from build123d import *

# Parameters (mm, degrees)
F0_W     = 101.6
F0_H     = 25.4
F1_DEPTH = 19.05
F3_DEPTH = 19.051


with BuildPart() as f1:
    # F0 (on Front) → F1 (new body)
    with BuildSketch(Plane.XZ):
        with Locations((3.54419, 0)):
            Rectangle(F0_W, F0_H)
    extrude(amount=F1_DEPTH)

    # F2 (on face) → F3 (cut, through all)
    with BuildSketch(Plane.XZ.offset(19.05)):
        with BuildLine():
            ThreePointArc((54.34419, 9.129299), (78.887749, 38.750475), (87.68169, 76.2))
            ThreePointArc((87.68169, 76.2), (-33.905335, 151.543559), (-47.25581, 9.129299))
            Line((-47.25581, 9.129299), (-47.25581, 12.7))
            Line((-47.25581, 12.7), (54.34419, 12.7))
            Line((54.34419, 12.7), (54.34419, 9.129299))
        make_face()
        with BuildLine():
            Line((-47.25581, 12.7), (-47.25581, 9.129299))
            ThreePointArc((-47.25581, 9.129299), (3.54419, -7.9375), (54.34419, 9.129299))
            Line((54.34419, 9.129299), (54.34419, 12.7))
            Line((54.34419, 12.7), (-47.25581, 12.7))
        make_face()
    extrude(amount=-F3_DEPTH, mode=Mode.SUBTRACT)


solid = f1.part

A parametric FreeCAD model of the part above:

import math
import FreeCAD as App
import Part
import Sketcher

V = App.Vector
Q = App.Units.Quantity

doc = App.newDocument("Part")
body = doc.addObject("PartDesign::Body", "Body")

sketch1 = body.newObject("Sketcher::SketchObject", "Sketch")
sketch1.AttachmentSupport = (doc.getObject("XZ_Plane"), [""])
sketch1.MapMode = "FlatFace"
sketch1.addGeometry([
    Part.LineSegment(V(-47, 13, 0), V(-47, -13, 0)),
    Part.LineSegment(V(-47, -13, 0), V(54, -13, 0)),
    Part.LineSegment(V(54, -13, 0), V(54, 13, 0)),
    Part.LineSegment(V(54, 13, 0), V(-47, 13, 0)),
], False)
sketch1.addConstraint([
    Sketcher.Constraint("Coincident", 0, 2, 1, 1),
    Sketcher.Constraint("Coincident", 1, 2, 2, 1),
    Sketcher.Constraint("Coincident", 2, 2, 3, 1),
    Sketcher.Constraint("Coincident", 3, 2, 0, 1),
    Sketcher.Constraint("Vertical", 0),
    Sketcher.Constraint("Horizontal", 1),
    Sketcher.Constraint("Vertical", 2),
    Sketcher.Constraint("Horizontal", 3),
    Sketcher.Constraint("DistanceX", 1, 1, 1, 2, Q("4 in")),
    Sketcher.Constraint("DistanceY", 0, 2, 0, 1, Q("1 in")),
    Sketcher.Constraint("DistanceY", 0, 2, -1, 1, Q("0.5 in")),
    Sketcher.Constraint("DistanceX", 0, 2, -1, 1, 47.25581),
])
pad1 = body.newObject("PartDesign::Pad", "Pad")
pad1.Profile = sketch1
pad1.Length = Q("0.75 in")

sketch2 = body.newObject("Sketcher::SketchObject", "Sketch001")
sketch2.AttachmentSupport = (doc.getObject("XZ_Plane"), [""])
sketch2.MapMode = "FlatFace"
sketch2.AttachmentOffset = App.Placement(V(0, 0, 0.75 * 25.4), App.Rotation())
sketch2.addGeometry([
    Part.ArcOfCircle(Part.Circle(V(4, 76, 0), V(0, 0, 1), 84), math.radians(-53), math.radians(0)),
    Part.ArcOfCircle(Part.Circle(V(4, 76, 0), V(0, 0, 1), 84), math.radians(0), math.radians(233)),
    Part.ArcOfCircle(Part.Circle(V(4, 76, 0), V(0, 0, 1), 84), math.radians(-127), math.radians(-53)),
], False)
sketch2.addConstraint([
    Sketcher.Constraint("Tangent", 0, 2, 1, 1),
    Sketcher.Constraint("Tangent", 1, 2, 2, 1),
    Sketcher.Constraint("Tangent", 2, 2, 0, 1),
    Sketcher.Constraint("Horizontal", 2, 3, 0, 2),
    Sketcher.Constraint("Horizontal", 1, 2, 2, 2),
    Sketcher.Constraint("DistanceY", -1, 1, 0, 3, Q("3.0000001 in")),
    Sketcher.Constraint("Radius", 1, Q("3.3125 in")),
    Sketcher.Constraint("DistanceX", 1, 2, 1, 3, Q("2 in")),
    Sketcher.Constraint("DistanceX", -1, 1, 1, 3, 3.54419),
])
pocket1 = body.newObject("PartDesign::Pocket", "Pocket")
pocket1.Profile = sketch2
pocket1.Type = "ThroughAll"

doc.recompute()
